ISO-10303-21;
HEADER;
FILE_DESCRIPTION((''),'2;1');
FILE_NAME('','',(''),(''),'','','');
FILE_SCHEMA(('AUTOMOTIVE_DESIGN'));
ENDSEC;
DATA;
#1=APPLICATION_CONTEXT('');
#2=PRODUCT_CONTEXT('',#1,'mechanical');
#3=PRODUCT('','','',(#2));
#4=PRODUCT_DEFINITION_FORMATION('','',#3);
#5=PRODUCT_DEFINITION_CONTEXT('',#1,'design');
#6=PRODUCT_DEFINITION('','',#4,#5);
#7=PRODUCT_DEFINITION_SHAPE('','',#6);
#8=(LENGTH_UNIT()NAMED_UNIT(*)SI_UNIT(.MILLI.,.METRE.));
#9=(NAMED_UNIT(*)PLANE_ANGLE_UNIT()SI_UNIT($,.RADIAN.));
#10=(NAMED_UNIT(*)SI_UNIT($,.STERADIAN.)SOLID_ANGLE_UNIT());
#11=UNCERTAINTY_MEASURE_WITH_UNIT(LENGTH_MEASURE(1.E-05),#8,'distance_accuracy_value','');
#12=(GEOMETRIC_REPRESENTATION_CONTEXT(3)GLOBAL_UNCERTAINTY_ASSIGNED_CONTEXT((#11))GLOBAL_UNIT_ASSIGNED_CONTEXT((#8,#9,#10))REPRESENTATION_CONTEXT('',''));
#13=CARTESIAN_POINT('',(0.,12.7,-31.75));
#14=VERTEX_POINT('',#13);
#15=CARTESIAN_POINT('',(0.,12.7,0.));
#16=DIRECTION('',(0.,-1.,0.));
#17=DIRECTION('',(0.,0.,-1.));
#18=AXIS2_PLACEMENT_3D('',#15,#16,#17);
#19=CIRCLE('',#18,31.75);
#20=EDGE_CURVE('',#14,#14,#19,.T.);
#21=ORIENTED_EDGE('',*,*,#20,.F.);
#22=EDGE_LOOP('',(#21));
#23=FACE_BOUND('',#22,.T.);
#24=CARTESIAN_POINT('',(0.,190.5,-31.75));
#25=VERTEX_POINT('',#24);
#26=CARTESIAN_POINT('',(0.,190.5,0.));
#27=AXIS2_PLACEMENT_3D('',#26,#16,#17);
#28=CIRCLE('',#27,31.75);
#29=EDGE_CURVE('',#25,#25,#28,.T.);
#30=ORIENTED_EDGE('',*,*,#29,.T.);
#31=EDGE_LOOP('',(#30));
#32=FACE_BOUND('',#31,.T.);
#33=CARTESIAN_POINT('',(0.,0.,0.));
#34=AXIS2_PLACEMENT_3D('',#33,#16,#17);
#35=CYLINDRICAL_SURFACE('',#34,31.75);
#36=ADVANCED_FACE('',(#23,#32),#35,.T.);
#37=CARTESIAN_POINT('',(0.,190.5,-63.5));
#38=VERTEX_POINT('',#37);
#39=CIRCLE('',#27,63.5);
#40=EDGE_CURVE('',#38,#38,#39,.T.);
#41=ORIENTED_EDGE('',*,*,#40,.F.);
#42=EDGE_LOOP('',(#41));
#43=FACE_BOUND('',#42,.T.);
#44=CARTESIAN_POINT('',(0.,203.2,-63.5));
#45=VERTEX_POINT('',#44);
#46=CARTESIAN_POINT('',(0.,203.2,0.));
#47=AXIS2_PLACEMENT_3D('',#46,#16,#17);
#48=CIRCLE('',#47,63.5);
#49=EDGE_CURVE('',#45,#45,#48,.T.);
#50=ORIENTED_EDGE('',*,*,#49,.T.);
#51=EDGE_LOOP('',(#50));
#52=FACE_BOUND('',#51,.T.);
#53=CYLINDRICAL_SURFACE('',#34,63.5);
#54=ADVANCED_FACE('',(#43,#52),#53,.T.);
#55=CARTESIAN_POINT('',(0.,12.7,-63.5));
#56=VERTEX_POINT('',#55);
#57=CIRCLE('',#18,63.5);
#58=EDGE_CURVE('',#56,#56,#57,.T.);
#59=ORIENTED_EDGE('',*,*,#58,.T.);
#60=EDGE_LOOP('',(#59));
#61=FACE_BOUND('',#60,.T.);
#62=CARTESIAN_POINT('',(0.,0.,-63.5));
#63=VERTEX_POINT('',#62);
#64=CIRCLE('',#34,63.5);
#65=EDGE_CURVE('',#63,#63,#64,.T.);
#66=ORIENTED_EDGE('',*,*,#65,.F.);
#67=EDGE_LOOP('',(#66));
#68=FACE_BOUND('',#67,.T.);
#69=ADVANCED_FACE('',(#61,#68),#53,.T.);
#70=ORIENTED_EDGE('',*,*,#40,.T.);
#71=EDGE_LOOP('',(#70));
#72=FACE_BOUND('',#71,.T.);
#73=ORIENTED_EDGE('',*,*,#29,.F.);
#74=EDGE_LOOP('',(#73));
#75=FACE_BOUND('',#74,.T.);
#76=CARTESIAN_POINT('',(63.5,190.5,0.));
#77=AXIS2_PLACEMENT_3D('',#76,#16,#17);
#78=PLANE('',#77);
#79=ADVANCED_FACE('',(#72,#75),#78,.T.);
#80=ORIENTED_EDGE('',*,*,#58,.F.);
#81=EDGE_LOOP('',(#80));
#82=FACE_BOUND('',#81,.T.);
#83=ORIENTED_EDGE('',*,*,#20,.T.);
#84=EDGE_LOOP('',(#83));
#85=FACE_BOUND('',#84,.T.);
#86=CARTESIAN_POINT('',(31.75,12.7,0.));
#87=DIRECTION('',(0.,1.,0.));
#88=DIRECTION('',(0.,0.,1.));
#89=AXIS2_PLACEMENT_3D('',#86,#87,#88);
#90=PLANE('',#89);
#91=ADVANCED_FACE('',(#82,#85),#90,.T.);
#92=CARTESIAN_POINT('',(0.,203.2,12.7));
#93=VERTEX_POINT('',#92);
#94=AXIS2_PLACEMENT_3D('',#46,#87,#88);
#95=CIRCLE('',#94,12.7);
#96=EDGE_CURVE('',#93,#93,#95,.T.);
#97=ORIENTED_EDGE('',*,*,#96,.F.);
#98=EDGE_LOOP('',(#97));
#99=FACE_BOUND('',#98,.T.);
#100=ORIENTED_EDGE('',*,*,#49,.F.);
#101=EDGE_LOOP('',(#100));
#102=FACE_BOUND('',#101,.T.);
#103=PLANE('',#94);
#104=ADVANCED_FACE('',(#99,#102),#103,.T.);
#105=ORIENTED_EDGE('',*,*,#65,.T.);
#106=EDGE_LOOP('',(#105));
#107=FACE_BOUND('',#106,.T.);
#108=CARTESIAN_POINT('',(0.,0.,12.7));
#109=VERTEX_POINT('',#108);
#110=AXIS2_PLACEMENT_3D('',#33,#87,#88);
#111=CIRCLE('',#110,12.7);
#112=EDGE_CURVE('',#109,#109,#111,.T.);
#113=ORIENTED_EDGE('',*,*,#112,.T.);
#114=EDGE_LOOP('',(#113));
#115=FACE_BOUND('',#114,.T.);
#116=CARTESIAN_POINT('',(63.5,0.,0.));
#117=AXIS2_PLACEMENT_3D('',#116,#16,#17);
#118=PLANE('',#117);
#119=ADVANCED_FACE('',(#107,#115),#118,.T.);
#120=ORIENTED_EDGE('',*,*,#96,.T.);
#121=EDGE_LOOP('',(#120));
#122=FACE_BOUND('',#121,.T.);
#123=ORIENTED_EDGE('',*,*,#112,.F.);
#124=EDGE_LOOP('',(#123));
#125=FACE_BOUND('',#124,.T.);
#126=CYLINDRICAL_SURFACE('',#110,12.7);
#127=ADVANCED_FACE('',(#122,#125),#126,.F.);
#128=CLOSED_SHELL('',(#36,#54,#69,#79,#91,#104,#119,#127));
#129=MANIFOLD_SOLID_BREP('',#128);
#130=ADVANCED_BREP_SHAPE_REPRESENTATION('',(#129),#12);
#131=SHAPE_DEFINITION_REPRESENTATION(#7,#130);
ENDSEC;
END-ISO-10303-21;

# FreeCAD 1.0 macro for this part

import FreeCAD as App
import Part
import Sketcher
from FreeCAD import Vector
Q = App.Units.Quantity

doc = App.newDocument("Part")
body = doc.addObject("PartDesign::Body", "Body")

# Sketch on XY plane
sketch1 = body.newObject("Sketcher::SketchObject", "Sketch")
sketch1.AttachmentSupport = (doc.getObject("XY_Plane"), [""])
sketch1.MapMode = "FlatFace"
sketch1.addGeometry(Part.LineSegment(Vector(0, 203, 0), Vector(0, 0, 0)), False)
sketch1.addGeometry(Part.LineSegment(Vector(0, 0, 0), Vector(64, 0, 0)), False)
sketch1.addGeometry(Part.LineSegment(Vector(64, 0, 0), Vector(64, 13, 0)), False)
sketch1.addGeometry(Part.LineSegment(Vector(64, 13, 0), Vector(32, 13, 0)), False)
sketch1.addGeometry(Part.LineSegment(Vector(32, 13, 0), Vector(32, 190, 0)), False)
sketch1.addGeometry(Part.LineSegment(Vector(32, 190, 0), Vector(64, 190, 0)), False)
sketch1.addGeometry(Part.LineSegment(Vector(64, 190, 0), Vector(64, 203, 0)), False)
sketch1.addGeometry(Part.LineSegment(Vector(64, 203, 0), Vector(0, 203, 0)), False)
sketch1.addConstraint(Sketcher.Constraint("Coincident", 0, 2, 1, 1))
sketch1.addConstraint(Sketcher.Constraint("Coincident", 1, 2, 2, 1))
sketch1.addConstraint(Sketcher.Constraint("Coincident", 2, 2, 3, 1))
sketch1.addConstraint(Sketcher.Constraint("Coincident", 3, 2, 4, 1))
sketch1.addConstraint(Sketcher.Constraint("Coincident", 4, 2, 5, 1))
sketch1.addConstraint(Sketcher.Constraint("Coincident", 5, 2, 6, 1))
sketch1.addConstraint(Sketcher.Constraint("Coincident", 6, 2, 7, 1))
sketch1.addConstraint(Sketcher.Constraint("Coincident", 7, 2, 0, 1))
sketch1.addConstraint(Sketcher.Constraint("Vertical", 0))
sketch1.addConstraint(Sketcher.Constraint("Horizontal", 1))
sketch1.addConstraint(Sketcher.Constraint("Vertical", 2))
sketch1.addConstraint(Sketcher.Constraint("Horizontal", 3))
sketch1.addConstraint(Sketcher.Constraint("Vertical", 4))
sketch1.addConstraint(Sketcher.Constraint("Horizontal", 5))
sketch1.addConstraint(Sketcher.Constraint("Vertical", 6))
sketch1.addConstraint(Sketcher.Constraint("Horizontal", 7))
sketch1.addConstraint(Sketcher.Constraint("Coincident", 0, 2, -1, 1))
sketch1.addConstraint(Sketcher.Constraint("Vertical", 2, 2, 5, 2))
sketch1.addConstraint(Sketcher.Constraint("Equal", 2, 6))
sketch1.addConstraint(Sketcher.Constraint("DistanceY", 0, 2, 0, 1, Q("8 in")))
sketch1.addConstraint(Sketcher.Constraint("DistanceY", 4, 1, 4, 2, Q("7 in")))
sketch1.addConstraint(Sketcher.Constraint("DistanceX", 1, 1, 1, 2, Q("2.5 in")))
sketch1.addConstraint(Sketcher.Constraint("DistanceX", 3, 2, 3, 1, Q("1.25 in")))
revolution = body.newObject("PartDesign::Revolution", "Revolution")
revolution.Profile = sketch1
revolution.ReferenceAxis = (sketch1, ["V_Axis"])
revolution.Angle = 360

# Sketch on XZ plane
sketch2 = body.newObject("Sketcher::SketchObject", "Sketch001")
sketch2.AttachmentSupport = (doc.getObject("XZ_Plane"), [""])
sketch2.MapMode = "FlatFace"
sketch2.AttachmentOffset = App.Placement(Vector(0, 0, -8 * 25.4), App.Rotation())
sketch2.addGeometry(Part.Circle(Vector(0, 0, 0), Vector(0, 0, 1), 13), False)
sketch2.addConstraint(Sketcher.Constraint("Coincident", 0, 3, -1, 1))
sketch2.addConstraint(Sketcher.Constraint("Diameter", 0, Q("1 in")))
pocket1 = body.newObject("PartDesign::Pocket", "Pocket")
pocket1.Profile = sketch2
pocket1.Type = "ThroughAll"
pocket1.Reversed = True

doc.recompute()
